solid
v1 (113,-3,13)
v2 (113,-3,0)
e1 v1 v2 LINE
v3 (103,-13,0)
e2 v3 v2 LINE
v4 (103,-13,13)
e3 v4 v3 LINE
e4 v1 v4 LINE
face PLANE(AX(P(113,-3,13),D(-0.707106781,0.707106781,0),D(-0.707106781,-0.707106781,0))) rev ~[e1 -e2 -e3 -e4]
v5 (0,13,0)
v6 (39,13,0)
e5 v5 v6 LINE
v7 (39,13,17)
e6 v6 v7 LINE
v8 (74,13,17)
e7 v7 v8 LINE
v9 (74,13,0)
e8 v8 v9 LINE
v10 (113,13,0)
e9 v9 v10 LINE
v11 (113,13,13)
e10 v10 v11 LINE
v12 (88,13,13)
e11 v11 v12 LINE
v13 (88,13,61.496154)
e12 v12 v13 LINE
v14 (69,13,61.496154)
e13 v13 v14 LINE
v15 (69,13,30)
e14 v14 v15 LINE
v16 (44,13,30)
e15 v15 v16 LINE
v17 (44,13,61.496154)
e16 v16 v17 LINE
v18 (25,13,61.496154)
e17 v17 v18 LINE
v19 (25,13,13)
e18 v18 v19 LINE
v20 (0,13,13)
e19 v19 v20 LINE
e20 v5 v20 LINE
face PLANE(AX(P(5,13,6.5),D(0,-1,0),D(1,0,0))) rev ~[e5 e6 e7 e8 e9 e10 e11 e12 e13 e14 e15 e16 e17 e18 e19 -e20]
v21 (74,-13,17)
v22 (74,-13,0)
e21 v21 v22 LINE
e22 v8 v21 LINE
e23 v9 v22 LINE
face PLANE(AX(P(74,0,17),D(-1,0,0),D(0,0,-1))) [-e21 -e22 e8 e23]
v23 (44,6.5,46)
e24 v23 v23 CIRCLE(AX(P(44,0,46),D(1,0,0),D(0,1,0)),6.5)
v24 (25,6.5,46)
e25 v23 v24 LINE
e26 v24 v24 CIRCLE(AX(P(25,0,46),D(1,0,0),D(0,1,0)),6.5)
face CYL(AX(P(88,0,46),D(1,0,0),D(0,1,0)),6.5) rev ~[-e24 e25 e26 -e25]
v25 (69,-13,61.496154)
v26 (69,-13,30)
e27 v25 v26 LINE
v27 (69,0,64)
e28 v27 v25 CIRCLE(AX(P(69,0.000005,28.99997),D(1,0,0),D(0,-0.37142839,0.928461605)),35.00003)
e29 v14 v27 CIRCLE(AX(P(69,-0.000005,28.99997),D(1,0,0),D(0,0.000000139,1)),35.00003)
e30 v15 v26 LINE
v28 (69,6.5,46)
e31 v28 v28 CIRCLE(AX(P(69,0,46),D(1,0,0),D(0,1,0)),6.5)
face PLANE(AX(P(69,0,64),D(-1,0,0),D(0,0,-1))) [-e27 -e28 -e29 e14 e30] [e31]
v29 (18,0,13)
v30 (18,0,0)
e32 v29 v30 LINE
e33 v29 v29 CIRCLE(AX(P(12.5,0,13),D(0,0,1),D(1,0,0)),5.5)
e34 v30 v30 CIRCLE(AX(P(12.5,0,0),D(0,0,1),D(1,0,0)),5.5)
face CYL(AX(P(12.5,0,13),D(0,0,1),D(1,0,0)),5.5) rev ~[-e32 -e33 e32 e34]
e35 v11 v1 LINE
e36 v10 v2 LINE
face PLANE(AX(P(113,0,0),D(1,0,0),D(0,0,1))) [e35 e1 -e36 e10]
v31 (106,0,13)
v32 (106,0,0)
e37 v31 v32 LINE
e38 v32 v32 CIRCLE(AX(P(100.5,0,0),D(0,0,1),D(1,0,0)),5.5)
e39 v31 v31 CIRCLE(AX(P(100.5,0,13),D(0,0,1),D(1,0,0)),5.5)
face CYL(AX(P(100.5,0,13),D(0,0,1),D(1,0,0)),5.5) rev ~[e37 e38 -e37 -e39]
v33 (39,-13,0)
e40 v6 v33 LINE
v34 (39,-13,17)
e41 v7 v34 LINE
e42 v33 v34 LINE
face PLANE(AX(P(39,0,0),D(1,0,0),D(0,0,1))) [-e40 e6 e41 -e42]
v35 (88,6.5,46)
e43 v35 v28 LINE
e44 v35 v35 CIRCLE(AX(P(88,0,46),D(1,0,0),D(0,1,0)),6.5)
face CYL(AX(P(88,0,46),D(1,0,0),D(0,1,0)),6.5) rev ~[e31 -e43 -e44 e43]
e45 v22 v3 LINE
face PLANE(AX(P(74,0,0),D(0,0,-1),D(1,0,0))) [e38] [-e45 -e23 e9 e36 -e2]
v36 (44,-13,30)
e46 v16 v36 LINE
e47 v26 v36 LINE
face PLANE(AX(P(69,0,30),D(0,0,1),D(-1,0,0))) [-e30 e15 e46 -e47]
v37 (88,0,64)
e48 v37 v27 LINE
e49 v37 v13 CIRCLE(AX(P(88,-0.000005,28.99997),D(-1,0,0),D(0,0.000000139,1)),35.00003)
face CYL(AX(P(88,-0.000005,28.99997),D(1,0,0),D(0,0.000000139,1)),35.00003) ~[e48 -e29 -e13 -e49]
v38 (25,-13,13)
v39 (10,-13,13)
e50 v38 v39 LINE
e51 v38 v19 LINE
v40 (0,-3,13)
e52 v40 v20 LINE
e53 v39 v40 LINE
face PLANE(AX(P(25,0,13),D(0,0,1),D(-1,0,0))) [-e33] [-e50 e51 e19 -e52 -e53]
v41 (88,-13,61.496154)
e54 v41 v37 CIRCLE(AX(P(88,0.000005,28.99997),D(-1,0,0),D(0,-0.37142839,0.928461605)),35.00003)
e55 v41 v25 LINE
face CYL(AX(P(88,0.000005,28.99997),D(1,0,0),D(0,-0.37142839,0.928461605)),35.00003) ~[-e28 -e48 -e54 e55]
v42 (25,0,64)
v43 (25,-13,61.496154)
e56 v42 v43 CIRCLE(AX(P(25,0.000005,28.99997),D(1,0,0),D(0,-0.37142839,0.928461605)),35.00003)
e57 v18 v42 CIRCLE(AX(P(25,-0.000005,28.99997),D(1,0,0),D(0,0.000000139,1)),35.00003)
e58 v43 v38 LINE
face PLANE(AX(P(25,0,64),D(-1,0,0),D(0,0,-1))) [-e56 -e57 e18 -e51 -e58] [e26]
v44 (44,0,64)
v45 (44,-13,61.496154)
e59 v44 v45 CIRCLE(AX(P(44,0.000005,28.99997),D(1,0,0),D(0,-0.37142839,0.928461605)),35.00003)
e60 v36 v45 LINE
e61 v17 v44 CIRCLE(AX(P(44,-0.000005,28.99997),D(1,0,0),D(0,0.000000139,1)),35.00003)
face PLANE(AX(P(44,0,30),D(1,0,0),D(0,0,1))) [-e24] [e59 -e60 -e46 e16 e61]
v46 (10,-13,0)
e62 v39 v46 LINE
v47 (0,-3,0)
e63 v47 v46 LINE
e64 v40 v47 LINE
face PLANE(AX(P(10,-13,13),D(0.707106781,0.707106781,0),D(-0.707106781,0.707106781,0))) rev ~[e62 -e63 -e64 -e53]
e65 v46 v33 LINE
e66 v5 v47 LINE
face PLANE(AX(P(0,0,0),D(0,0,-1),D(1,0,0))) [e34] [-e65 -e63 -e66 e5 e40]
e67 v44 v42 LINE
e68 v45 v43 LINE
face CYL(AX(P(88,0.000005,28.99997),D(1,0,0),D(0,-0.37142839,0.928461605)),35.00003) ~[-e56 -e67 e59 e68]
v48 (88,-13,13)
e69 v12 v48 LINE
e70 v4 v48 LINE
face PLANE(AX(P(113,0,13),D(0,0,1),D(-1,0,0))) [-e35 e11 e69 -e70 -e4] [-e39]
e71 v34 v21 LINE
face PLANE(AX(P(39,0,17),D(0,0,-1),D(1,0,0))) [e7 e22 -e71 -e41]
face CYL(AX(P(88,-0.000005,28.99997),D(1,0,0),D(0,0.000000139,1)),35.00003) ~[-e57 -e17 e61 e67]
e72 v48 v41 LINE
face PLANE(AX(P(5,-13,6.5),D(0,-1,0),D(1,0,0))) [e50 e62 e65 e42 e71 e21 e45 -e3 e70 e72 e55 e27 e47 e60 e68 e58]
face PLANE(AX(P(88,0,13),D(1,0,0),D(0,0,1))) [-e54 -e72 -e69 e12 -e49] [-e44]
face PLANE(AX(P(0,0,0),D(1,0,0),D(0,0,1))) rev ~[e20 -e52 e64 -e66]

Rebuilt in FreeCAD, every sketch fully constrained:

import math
import FreeCAD as App
import Part
import Sketcher


def add_polygon(sketch, points):
    """Adds a closed chain of lines whose ends are joined by coincident constraints."""
    first, n = sketch.GeometryCount, len(points)
    for a, b in zip(points, points[1:] + points[:1]):
        sketch.addGeometry(Part.LineSegment(App.Vector(*a, 0), App.Vector(*b, 0)), False)
    for i in range(n):
        sketch.addConstraint(Sketcher.Constraint("Coincident", first + i, 2, first + (i + 1) % n, 1))

doc = App.newDocument("Part")
body = doc.addObject("PartDesign::Body", "Body")

sketch1 = body.newObject("Sketcher::SketchObject", "Sketch")
sketch1.AttachmentSupport = (doc.getObject("XZ_Plane"), [""])
sketch1.MapMode = "FlatFace"
add_polygon(sketch1, [(0, 13), (0, 0), (39, 0), (39, 17), (74, 17), (74, 0), (113, 0), (113, 13), (88, 13), (88, 64), (69, 64), (69, 30), (44, 30), (44, 64), (25, 64), (25, 13)])
sketch1.addConstraint(Sketcher.Constraint("Vertical", 0))
sketch1.addConstraint(Sketcher.Constraint("Horizontal", 1))
sketch1.addConstraint(Sketcher.Constraint("Vertical", 2))
sketch1.addConstraint(Sketcher.Constraint("Horizontal", 3))
sketch1.addConstraint(Sketcher.Constraint("Vertical", 4))
sketch1.addConstraint(Sketcher.Constraint("Horizontal", 5))
sketch1.addConstraint(Sketcher.Constraint("Vertical", 6))
sketch1.addConstraint(Sketcher.Constraint("Horizontal", 7))
sketch1.addConstraint(Sketcher.Constraint("Vertical", 8))
sketch1.addConstraint(Sketcher.Constraint("Horizontal", 9))
sketch1.addConstraint(Sketcher.Constraint("Vertical", 10))
sketch1.addConstraint(Sketcher.Constraint("Horizontal", 11))
sketch1.addConstraint(Sketcher.Constraint("Vertical", 12))
sketch1.addConstraint(Sketcher.Constraint("Horizontal", 13))
sketch1.addConstraint(Sketcher.Constraint("Vertical", 14))
sketch1.addConstraint(Sketcher.Constraint("Horizontal", 15))
sketch1.addConstraint(Sketcher.Constraint("Coincident", 0, 2, -1, 1))
sketch1.addConstraint(Sketcher.Constraint("PointOnObject", 4, 2, -1))
sketch1.addConstraint(Sketcher.Constraint("Horizontal", 9, 2, 12, 2))
sketch1.addConstraint(Sketcher.Constraint("Horizontal", 7, 2, 14, 2))
sketch1.addConstraint(Sketcher.Constraint("Equal", 1, 5))
sketch1.addConstraint(Sketcher.Constraint("Equal", 7, 11))
sketch1.addConstraint(Sketcher.Constraint("Equal", 9, 13))
sketch1.addConstraint(Sketcher.Constraint("Equal", 11, 15))
sketch1.addConstraint(Sketcher.Constraint("DistanceX", 1, 1, 1, 2, 39.0))
sketch1.addConstraint(Sketcher.Constraint("DistanceX", 3, 1, 3, 2, 35.0))
sketch1.addConstraint(Sketcher.Constraint("DistanceX", 7, 2, 7, 1, 25.0))
sketch1.addConstraint(Sketcher.Constraint("DistanceY", 0, 2, 0, 1, 13.0))
sketch1.addConstraint(Sketcher.Constraint("DistanceY", 2, 1, 2, 2, 17.0))
sketch1.addConstraint(Sketcher.Constraint("DistanceY", 8, 1, 8, 2, 51.0))
sketch1.addConstraint(Sketcher.Constraint("DistanceY", 10, 2, 10, 1, 34.0))
pad1 = body.newObject("PartDesign::Pad", "Pad")
pad1.Profile = sketch1
pad1.Length = 26
pad1.Midplane = True

sketch2 = body.newObject("Sketcher::SketchObject", "Sketch001")
sketch2.AttachmentSupport = (doc.getObject("XY_Plane"), [""])
sketch2.MapMode = "FlatFace"
sketch2.AttachmentOffset = App.Placement(App.Vector(0, 0, 13), App.Rotation())
add_polygon(sketch2, [(0, -13), (10, -13), (0, -3)])
sketch2.addGeometry(Part.Circle(App.Vector(12, 0, 0), App.Vector(0, 0, 1), 6), False)
sketch2.addConstraint(Sketcher.Constraint("Horizontal", 0))
sketch2.addConstraint(Sketcher.Constraint("Vertical", 2))
sketch2.addConstraint(Sketcher.Constraint("PointOnObject", 3, 3, -1))
sketch2.addConstraint(Sketcher.Constraint("PointOnObject", 1, 2, -2))
sketch2.addConstraint(Sketcher.Constraint("Equal", 0, 2))
sketch2.addConstraint(Sketcher.Constraint("Diameter", 3, 11.0))
sketch2.addConstraint(Sketcher.Constraint("DistanceX", 0, 1, 0, 2, 10.0))
sketch2.addConstraint(Sketcher.Constraint("DistanceY", 0, 2, -1, 1, 13.0))
sketch2.addConstraint(Sketcher.Constraint("DistanceX", -1, 1, 3, 3, 12.5))
pocket1 = body.newObject("PartDesign::Pocket", "Pocket")
pocket1.Profile = sketch2
pocket1.Type = "ThroughAll"

sketch3 = body.newObject("Sketcher::SketchObject", "Sketch002")
sketch3.AttachmentSupport = (doc.getObject("XY_Plane"), [""])
sketch3.MapMode = "FlatFace"
sketch3.AttachmentOffset = App.Placement(App.Vector(0, 0, 13), App.Rotation())
sketch3.addGeometry(Part.Circle(App.Vector(100, 0, 0), App.Vector(0, 0, 1), 6), False)
add_polygon(sketch3, [(113, -3), (103, -13), (113, -13)])
sketch3.addConstraint(Sketcher.Constraint("Horizontal", 2))
sketch3.addConstraint(Sketcher.Constraint("Vertical", 3))
sketch3.addConstraint(Sketcher.Constraint("PointOnObject", 0, 3, -1))
sketch3.addConstraint(Sketcher.Constraint("Equal", 2, 3))
sketch3.addConstraint(Sketcher.Constraint("Diameter", 0, 11.0))
sketch3.addConstraint(Sketcher.Constraint("DistanceX", 2, 1, 2, 2, 10.0))
sketch3.addConstraint(Sketcher.Constraint("DistanceX", -1, 1, 1, 2, 103.0))
sketch3.addConstraint(Sketcher.Constraint("DistanceY", 1, 2, -1, 1, 13.0))
sketch3.addConstraint(Sketcher.Constraint("DistanceX", -1, 1, 0, 3, 100.5))
pocket2 = body.newObject("PartDesign::Pocket", "Pocket001")
pocket2.Profile = sketch3
pocket2.Type = "ThroughAll"

sketch4 = body.newObject("Sketcher::SketchObject", "Sketch003")
sketch4.AttachmentSupport = (doc.getObject("YZ_Plane"), [""])
sketch4.MapMode = "FlatFace"
sketch4.AttachmentOffset = App.Placement(App.Vector(0, 0, 88), App.Rotation())
sketch4.addGeometry(Part.Circle(App.Vector(0, 46, 0), App.Vector(0, 0, 1), 6), False)
sketch4.addConstraint(Sketcher.Constraint("PointOnObject", 0, 3, -2))
sketch4.addConstraint(Sketcher.Constraint("Diameter", 0, 13.0))
sketch4.addConstraint(Sketcher.Constraint("DistanceY", -1, 1, 0, 3, 46.0))
pocket3 = body.newObject("PartDesign::Pocket", "Pocket002")
pocket3.Profile = sketch4
pocket3.Type = "ThroughAll"

sketch5 = body.newObject("Sketcher::SketchObject", "Sketch004")
sketch5.AttachmentSupport = (doc.getObject("YZ_Plane"), [""])
sketch5.MapMode = "FlatFace"
sketch5.AttachmentOffset = App.Placement(App.Vector(0, 0, 88), App.Rotation())
sketch5.addGeometry(Part.LineSegment(App.Vector(13, 64, 0), App.Vector(0, 64, 0)), False)
sketch5.addGeometry(Part.ArcOfCircle(Part.Circle(App.Vector(0, 29, 0), App.Vector(0, 0, 1), 35), math.radians(68), math.radians(90)), False)
sketch5.addGeometry(Part.LineSegment(App.Vector(13, 61.5, 0), App.Vector(13, 64, 0)), False)
sketch5.addGeometry(Part.ArcOfCircle(Part.Circle(App.Vector(0, 29, 0), App.Vector(0, 0, 1), 35), math.radians(90), math.radians(112)), False)
sketch5.addGeometry(Part.LineSegment(App.Vector(0, 64, 0), App.Vector(-13, 64, 0)), False)
sketch5.addGeometry(Part.LineSegment(App.Vector(-13, 64, 0), App.Vector(-13, 61.5, 0)), False)
sketch5.addConstraint(Sketcher.Constraint("Tangent", 0, 2, 1, 2))
sketch5.addConstraint(Sketcher.Constraint("Coincident", 1, 1, 2, 1))
sketch5.addConstraint(Sketcher.Constraint("Coincident", 2, 2, 0, 1))
sketch5.addConstraint(Sketcher.Constraint("Tangent", 3, 1, 4, 1))
sketch5.addConstraint(Sketcher.Constraint("Coincident", 4, 2, 5, 1))
sketch5.addConstraint(Sketcher.Constraint("Coincident", 5, 2, 3, 2))
sketch5.addConstraint(Sketcher.Constraint("Horizontal", 0))
sketch5.addConstraint(Sketcher.Constraint("Vertical", 2))
sketch5.addConstraint(Sketcher.Constraint("Horizontal", 4))
sketch5.addConstraint(Sketcher.Constraint("Vertical", 5))
sketch5.addConstraint(Sketcher.Constraint("Coincident", 3, 3, 1, 3))
sketch5.addConstraint(Sketcher.Constraint("Equal", 1, 3))
sketch5.addConstraint(Sketcher.Constraint("Symmetric", 1, 1, 5, 2, -2))
sketch5.addConstraint(Sketcher.Constraint("DistanceX", 0, 2, 0, 1, 13.0))
sketch5.addConstraint(Sketcher.Constraint("DistanceY", -1, 1, 0, 2, 64.0))
sketch5.addConstraint(Sketcher.Constraint("Radius", 1, 35.00003))
pocket4 = body.newObject("PartDesign::Pocket", "Pocket003")
pocket4.Profile = sketch5
pocket4.Type = "ThroughAll"

doc.recompute()
